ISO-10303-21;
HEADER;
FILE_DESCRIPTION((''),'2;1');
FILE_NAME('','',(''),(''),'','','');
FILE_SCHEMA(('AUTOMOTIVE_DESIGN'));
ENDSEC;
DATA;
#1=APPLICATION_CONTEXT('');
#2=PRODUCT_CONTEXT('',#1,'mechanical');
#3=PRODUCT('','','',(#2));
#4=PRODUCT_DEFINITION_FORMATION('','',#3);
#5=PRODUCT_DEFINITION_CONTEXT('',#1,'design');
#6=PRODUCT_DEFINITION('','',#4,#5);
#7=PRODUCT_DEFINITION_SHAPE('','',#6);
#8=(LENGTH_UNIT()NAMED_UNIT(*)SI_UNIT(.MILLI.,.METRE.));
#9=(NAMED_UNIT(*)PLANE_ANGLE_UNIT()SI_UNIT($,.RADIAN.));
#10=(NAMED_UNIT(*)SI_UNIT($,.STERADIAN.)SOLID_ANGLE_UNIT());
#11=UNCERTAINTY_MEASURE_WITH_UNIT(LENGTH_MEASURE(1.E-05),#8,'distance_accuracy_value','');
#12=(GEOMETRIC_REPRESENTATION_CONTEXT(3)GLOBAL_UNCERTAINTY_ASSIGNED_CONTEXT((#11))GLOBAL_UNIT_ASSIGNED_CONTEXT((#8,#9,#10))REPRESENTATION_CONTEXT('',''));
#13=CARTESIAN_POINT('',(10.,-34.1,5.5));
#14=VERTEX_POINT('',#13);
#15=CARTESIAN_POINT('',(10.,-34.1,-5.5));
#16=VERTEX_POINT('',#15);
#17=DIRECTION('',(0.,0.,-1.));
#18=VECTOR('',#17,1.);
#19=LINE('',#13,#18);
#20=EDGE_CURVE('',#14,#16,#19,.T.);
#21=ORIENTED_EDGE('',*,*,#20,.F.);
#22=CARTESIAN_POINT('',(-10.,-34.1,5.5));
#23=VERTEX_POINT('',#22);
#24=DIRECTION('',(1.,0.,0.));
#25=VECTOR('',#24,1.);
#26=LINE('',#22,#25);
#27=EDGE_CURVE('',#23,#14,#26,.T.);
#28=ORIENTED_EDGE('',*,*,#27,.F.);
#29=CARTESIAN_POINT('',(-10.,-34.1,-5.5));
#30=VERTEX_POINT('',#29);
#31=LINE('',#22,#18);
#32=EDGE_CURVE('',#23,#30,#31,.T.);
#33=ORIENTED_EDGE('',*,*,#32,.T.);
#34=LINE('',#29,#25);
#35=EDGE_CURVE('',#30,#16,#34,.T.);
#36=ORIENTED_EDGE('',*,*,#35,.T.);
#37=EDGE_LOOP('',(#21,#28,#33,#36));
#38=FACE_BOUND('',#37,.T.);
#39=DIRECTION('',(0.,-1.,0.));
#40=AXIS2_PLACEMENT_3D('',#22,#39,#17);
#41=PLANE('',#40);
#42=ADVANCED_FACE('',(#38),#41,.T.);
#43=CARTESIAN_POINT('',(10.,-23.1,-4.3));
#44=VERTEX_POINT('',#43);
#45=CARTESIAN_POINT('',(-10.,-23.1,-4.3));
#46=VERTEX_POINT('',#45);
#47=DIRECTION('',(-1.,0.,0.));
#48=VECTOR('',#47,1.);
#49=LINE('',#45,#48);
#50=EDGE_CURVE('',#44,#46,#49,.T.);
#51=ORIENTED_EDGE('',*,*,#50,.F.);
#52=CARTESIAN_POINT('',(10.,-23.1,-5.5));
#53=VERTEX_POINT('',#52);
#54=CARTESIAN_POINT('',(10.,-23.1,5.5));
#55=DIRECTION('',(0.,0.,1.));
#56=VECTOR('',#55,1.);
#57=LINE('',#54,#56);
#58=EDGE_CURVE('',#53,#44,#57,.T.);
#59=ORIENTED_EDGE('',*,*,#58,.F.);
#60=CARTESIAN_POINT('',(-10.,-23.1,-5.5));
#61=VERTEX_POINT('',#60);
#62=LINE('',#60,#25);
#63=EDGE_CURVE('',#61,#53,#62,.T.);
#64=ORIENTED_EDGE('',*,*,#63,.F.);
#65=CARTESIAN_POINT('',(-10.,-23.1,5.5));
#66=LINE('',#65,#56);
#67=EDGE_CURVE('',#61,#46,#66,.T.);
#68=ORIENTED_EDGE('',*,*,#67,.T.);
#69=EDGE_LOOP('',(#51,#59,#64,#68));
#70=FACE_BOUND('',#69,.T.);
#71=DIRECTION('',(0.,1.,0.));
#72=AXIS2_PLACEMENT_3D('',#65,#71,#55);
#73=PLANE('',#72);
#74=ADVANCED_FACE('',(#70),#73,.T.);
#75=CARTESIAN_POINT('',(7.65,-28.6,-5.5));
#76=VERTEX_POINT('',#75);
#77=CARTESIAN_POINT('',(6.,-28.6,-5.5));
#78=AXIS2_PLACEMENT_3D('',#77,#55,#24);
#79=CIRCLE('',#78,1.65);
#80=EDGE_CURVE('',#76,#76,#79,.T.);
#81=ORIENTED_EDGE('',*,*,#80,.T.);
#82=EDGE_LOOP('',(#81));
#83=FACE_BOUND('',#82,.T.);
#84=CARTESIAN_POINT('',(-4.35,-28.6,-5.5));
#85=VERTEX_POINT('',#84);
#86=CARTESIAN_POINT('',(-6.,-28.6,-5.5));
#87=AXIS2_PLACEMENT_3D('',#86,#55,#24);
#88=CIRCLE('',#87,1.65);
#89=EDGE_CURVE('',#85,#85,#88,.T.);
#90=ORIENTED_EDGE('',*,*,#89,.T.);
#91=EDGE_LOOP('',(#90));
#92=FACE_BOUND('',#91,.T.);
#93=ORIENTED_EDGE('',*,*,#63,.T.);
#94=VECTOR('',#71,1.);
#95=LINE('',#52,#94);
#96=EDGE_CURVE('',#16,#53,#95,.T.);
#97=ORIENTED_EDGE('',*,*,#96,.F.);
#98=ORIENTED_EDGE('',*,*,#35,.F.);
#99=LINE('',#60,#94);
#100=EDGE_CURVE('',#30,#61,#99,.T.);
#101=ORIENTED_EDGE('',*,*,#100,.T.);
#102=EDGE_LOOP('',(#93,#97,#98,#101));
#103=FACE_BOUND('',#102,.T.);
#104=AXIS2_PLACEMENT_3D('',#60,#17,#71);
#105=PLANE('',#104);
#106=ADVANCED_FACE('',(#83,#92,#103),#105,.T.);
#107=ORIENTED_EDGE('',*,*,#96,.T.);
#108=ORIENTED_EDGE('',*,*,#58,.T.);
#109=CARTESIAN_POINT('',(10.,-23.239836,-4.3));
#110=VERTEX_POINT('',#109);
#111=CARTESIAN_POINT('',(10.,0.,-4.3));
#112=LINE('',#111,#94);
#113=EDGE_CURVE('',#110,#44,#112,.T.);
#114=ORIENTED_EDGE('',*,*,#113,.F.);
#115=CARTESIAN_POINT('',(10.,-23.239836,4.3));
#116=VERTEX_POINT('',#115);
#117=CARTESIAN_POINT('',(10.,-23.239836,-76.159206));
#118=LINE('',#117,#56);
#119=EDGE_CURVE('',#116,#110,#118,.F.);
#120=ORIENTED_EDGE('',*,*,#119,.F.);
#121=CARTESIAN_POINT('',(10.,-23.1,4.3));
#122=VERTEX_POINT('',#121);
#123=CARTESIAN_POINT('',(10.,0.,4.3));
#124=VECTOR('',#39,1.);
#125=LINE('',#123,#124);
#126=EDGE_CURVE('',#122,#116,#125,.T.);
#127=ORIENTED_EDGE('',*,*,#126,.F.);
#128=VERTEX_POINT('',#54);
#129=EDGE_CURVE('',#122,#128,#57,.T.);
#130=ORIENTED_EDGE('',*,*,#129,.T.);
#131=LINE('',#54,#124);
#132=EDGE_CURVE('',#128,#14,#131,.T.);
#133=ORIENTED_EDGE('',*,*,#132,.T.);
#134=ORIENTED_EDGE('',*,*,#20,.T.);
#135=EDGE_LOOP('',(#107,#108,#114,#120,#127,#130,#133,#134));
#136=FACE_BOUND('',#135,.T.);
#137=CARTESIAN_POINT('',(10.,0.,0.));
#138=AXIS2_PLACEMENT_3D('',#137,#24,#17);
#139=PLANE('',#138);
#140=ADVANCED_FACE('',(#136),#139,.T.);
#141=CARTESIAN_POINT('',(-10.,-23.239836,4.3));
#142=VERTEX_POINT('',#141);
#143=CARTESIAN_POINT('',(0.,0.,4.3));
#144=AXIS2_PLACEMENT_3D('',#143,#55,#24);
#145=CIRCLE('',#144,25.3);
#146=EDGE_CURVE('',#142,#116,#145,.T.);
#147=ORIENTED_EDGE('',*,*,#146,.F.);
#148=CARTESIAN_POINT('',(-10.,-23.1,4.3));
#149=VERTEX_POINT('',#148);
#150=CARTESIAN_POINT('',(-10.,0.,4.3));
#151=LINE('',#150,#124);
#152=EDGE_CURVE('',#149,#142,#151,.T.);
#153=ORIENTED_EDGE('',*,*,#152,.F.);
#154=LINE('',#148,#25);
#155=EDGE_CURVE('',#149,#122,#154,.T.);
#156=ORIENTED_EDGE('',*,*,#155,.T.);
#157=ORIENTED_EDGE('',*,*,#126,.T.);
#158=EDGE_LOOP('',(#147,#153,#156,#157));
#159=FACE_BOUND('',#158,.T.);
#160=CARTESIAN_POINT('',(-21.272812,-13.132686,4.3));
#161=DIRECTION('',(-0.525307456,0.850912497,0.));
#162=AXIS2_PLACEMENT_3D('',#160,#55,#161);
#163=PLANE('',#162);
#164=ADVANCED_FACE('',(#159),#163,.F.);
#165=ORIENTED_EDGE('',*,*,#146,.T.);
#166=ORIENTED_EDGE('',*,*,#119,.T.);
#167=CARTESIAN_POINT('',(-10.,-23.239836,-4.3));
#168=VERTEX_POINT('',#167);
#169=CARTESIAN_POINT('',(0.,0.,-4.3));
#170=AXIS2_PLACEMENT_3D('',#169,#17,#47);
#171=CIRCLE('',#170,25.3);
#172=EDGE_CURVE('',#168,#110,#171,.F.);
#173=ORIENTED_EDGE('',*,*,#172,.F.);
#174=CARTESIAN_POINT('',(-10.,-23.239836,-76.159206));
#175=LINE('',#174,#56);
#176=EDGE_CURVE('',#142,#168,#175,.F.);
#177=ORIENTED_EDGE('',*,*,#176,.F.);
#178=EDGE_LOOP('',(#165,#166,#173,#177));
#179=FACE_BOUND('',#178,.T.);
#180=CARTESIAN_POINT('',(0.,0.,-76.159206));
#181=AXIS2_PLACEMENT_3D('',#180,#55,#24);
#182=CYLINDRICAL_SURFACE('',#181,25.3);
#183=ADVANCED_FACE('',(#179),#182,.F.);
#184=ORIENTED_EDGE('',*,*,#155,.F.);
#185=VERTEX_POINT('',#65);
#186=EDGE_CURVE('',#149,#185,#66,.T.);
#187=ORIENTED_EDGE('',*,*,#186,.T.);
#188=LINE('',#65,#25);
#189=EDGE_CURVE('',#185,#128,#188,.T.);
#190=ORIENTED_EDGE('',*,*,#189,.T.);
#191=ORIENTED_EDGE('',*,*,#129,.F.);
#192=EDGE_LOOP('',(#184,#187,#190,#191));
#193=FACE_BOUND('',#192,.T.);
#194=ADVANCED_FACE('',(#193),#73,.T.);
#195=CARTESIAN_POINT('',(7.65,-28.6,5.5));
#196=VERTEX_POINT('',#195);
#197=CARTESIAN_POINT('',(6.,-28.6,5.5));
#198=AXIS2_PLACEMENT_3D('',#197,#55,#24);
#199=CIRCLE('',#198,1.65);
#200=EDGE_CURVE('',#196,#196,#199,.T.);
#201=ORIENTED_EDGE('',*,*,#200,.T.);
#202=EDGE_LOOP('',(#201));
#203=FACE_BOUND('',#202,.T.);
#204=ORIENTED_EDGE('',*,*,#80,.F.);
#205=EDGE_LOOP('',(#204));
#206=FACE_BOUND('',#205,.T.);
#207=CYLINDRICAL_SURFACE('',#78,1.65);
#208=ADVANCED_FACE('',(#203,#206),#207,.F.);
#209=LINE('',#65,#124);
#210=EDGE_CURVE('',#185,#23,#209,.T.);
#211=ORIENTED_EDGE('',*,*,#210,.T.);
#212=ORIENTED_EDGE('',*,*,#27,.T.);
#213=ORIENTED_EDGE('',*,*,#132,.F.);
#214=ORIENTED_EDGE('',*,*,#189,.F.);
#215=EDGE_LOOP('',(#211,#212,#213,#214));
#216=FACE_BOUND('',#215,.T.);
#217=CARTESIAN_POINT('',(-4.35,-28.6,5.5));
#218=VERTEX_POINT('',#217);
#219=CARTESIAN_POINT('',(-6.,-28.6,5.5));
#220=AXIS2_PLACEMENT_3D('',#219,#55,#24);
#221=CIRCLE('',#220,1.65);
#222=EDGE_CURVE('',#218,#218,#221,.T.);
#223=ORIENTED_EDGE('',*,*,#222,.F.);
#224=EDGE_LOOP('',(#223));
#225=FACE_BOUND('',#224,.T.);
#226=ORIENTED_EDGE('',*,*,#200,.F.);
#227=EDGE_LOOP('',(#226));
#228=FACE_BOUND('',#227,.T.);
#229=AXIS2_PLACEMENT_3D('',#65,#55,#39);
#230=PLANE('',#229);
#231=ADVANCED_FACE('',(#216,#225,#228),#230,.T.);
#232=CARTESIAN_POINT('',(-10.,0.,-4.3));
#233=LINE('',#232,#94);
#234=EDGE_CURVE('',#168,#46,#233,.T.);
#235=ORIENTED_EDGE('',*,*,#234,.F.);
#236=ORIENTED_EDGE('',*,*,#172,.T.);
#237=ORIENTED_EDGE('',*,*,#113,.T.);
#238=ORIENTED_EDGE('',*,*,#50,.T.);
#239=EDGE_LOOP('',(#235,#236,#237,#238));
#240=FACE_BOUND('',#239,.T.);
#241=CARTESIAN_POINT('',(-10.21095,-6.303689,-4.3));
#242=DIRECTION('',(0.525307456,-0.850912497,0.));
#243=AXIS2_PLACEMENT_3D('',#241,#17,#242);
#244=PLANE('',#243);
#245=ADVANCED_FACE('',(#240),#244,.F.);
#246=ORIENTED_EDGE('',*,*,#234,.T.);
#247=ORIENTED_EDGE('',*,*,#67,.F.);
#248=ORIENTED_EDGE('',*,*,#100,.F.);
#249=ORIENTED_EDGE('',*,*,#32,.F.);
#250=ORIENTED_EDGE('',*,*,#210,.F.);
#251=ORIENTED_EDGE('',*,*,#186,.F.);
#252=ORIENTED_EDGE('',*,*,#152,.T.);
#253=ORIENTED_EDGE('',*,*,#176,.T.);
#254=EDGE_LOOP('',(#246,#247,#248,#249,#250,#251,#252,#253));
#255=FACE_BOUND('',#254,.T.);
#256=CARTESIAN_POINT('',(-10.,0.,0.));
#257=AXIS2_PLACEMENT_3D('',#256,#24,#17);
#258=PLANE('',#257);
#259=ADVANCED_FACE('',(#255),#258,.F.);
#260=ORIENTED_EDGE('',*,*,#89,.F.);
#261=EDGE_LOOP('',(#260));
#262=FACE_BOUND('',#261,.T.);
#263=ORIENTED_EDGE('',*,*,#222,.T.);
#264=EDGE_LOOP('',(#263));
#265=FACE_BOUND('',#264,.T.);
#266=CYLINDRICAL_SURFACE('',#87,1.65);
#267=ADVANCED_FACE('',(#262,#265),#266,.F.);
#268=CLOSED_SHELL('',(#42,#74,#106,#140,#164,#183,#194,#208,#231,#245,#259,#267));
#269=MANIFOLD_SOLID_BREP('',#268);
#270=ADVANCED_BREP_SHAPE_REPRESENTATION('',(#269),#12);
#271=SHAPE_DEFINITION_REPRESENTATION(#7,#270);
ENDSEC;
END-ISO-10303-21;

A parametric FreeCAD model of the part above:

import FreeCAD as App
import Part
import Sketcher
from FreeCAD import Vector
Q = App.Units.Quantity

doc = App.newDocument("Part")
body = doc.addObject("PartDesign::Body", "Body")

sketch1 = body.newObject("Sketcher::SketchObject", "Sketch")
sketch1.AttachmentSupport = (doc.getObject("YZ_Plane"), [""])
sketch1.MapMode = "FlatFace"
sketch1.addGeometry(Part.LineSegment(Vector(-23, 6, 0), Vector(-34, 6, 0)), False)
sketch1.addGeometry(Part.LineSegment(Vector(-34, 6, 0), Vector(-34, -6, 0)), False)
sketch1.addGeometry(Part.LineSegment(Vector(-34, -6, 0), Vector(-23, -6, 0)), False)
sketch1.addGeometry(Part.LineSegment(Vector(-23, -6, 0), Vector(-23, 6, 0)), False)
sketch1.addConstraint(Sketcher.Constraint("Coincident", 0, 2, 1, 1))
sketch1.addConstraint(Sketcher.Constraint("Coincident", 1, 2, 2, 1))
sketch1.addConstraint(Sketcher.Constraint("Coincident", 2, 2, 3, 1))
sketch1.addConstraint(Sketcher.Constraint("Coincident", 3, 2, 0, 1))
sketch1.addConstraint(Sketcher.Constraint("Horizontal", 0))
sketch1.addConstraint(Sketcher.Constraint("Vertical", 1))
sketch1.addConstraint(Sketcher.Constraint("Horizontal", 2))
sketch1.addConstraint(Sketcher.Constraint("Vertical", 3))
sketch1.addConstraint(Sketcher.Constraint("Equal", 2, 1))
sketch1.addConstraint(Sketcher.Constraint("DistanceX", 0, 2, 0, 1, Q("11 mm")))
sketch1.addConstraint(Sketcher.Constraint("DistanceX", 0, 2, -1, 1, Q("34.1 mm")))
sketch1.addConstraint(Sketcher.Constraint("DistanceY", -1, 1, 0, 2, Q("5.5 mm")))
pad1 = body.newObject("PartDesign::Pad", "Pad")
pad1.Profile = sketch1
pad1.Type = "TwoLengths"
pad1.Length = 10
pad1.Length2 = 10

sketch2 = body.newObject("Sketcher::SketchObject", "Sketch001")
sketch2.AttachmentSupport = (doc.getObject("XY_Plane"), [""])
sketch2.MapMode = "FlatFace"
sketch2.AttachmentOffset = App.Placement(Vector(0, 0, 5.5), App.Rotation())
sketch2.addGeometry(Part.Circle(Vector(6, -28.6, 0), Vector(0, 0, 1), 1.6), False)
sketch2.addGeometry(Part.Circle(Vector(-6, -28.6, 0), Vector(0, 0, 1), 1.6), False)
sketch2.addConstraint(Sketcher.Constraint("Equal", 0, 1))
sketch2.addConstraint(Sketcher.Constraint("Symmetric", 0, 3, 1, 3, -2))
sketch2.addConstraint(Sketcher.Constraint("Diameter", 0, Q("3.3 mm")))
sketch2.addConstraint(Sketcher.Constraint("DistanceX", -1, 1, 0, 3, Q("6 mm")))
sketch2.addConstraint(Sketcher.Constraint("DistanceY", 0, 3, -1, 1, Q("28.6 mm")))
pocket1 = body.newObject("PartDesign::Pocket", "Pocket")
pocket1.Profile = sketch2
pocket1.Type = "ThroughAll"

sketch3 = body.newObject("Sketcher::SketchObject", "Sketch002")
sketch3.AttachmentSupport = (doc.getObject("XY_Plane"), [""])
sketch3.MapMode = "FlatFace"
sketch3.addGeometry(Part.Circle(Vector(0, 0, 0), Vector(0, 0, 1), 25), False)
sketch3.addConstraint(Sketcher.Constraint("Coincident", 0, 3, -1, 1))
sketch3.addConstraint(Sketcher.Constraint("Diameter", 0, Q("50.6 mm")))
pocket2 = body.newObject("PartDesign::Pocket", "Pocket001")
pocket2.Profile = sketch3
pocket2.Type = "TwoLengths"
pocket2.Length = 4.3
pocket2.Length2 = 4.3
pocket2.Reversed = True

doc.recompute()
